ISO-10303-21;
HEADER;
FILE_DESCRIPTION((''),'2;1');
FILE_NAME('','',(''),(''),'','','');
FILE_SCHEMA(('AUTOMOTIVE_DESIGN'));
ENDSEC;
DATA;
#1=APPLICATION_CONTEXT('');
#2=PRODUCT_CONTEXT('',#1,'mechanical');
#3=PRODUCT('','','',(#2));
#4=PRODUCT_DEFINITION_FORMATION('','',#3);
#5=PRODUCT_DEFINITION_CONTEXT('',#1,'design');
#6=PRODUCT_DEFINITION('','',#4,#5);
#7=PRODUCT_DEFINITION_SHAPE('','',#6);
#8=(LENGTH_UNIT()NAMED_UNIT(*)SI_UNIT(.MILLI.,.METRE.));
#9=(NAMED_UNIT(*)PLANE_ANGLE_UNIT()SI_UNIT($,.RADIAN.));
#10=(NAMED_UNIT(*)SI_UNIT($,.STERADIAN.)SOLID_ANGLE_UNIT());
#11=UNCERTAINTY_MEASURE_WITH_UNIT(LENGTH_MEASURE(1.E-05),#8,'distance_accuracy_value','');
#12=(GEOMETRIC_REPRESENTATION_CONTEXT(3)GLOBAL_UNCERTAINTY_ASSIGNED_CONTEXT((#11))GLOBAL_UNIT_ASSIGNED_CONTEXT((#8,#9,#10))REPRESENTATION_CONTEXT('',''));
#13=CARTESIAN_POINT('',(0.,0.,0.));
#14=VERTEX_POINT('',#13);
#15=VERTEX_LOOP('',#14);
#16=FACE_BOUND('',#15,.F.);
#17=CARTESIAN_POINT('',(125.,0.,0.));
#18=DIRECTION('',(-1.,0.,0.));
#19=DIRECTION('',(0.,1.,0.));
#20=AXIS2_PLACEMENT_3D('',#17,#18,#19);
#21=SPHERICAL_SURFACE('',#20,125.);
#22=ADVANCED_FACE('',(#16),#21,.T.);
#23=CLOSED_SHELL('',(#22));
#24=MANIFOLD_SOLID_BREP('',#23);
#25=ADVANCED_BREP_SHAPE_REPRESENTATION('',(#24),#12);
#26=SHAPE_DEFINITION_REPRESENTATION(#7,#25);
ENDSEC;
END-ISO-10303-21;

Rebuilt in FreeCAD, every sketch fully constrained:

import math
import FreeCAD as App
import Part
import Sketcher

V = App.Vector
Q = App.Units.Quantity

doc = App.newDocument("Part")
body = doc.addObject("PartDesign::Body", "Body")

sketch1 = body.newObject("Sketcher::SketchObject", "Sketch")
sketch1.AttachmentSupport = (doc.getObject("XY_Plane"), [""])
sketch1.MapMode = "FlatFace"
sketch1.addGeometry([
    Part.ArcOfCircle(Part.Circle(V(125, 0, 0), V(0, 0, 1), 125), math.radians(0), math.radians(180)),
    Part.LineSegment(V(0, 0, 0), V(250, 0, 0)),
], False)
sketch1.addConstraint([
    Sketcher.Constraint("Coincident", 0, 1, 1, 2),
    Sketcher.Constraint("Coincident", 1, 1, 0, 2),
    Sketcher.Constraint("Horizontal", 1),
    Sketcher.Constraint("Coincident", 1, 1, -1, 1),
    Sketcher.Constraint("PointOnObject", 0, 3, -1),
    Sketcher.Constraint("Radius", 0, Q("125 mm")),
])
revolution = body.newObject("PartDesign::Revolution", "Revolution")
revolution.Profile = sketch1
revolution.ReferenceAxis = (sketch1, ["H_Axis"])
revolution.Angle = 360

doc.recompute()
